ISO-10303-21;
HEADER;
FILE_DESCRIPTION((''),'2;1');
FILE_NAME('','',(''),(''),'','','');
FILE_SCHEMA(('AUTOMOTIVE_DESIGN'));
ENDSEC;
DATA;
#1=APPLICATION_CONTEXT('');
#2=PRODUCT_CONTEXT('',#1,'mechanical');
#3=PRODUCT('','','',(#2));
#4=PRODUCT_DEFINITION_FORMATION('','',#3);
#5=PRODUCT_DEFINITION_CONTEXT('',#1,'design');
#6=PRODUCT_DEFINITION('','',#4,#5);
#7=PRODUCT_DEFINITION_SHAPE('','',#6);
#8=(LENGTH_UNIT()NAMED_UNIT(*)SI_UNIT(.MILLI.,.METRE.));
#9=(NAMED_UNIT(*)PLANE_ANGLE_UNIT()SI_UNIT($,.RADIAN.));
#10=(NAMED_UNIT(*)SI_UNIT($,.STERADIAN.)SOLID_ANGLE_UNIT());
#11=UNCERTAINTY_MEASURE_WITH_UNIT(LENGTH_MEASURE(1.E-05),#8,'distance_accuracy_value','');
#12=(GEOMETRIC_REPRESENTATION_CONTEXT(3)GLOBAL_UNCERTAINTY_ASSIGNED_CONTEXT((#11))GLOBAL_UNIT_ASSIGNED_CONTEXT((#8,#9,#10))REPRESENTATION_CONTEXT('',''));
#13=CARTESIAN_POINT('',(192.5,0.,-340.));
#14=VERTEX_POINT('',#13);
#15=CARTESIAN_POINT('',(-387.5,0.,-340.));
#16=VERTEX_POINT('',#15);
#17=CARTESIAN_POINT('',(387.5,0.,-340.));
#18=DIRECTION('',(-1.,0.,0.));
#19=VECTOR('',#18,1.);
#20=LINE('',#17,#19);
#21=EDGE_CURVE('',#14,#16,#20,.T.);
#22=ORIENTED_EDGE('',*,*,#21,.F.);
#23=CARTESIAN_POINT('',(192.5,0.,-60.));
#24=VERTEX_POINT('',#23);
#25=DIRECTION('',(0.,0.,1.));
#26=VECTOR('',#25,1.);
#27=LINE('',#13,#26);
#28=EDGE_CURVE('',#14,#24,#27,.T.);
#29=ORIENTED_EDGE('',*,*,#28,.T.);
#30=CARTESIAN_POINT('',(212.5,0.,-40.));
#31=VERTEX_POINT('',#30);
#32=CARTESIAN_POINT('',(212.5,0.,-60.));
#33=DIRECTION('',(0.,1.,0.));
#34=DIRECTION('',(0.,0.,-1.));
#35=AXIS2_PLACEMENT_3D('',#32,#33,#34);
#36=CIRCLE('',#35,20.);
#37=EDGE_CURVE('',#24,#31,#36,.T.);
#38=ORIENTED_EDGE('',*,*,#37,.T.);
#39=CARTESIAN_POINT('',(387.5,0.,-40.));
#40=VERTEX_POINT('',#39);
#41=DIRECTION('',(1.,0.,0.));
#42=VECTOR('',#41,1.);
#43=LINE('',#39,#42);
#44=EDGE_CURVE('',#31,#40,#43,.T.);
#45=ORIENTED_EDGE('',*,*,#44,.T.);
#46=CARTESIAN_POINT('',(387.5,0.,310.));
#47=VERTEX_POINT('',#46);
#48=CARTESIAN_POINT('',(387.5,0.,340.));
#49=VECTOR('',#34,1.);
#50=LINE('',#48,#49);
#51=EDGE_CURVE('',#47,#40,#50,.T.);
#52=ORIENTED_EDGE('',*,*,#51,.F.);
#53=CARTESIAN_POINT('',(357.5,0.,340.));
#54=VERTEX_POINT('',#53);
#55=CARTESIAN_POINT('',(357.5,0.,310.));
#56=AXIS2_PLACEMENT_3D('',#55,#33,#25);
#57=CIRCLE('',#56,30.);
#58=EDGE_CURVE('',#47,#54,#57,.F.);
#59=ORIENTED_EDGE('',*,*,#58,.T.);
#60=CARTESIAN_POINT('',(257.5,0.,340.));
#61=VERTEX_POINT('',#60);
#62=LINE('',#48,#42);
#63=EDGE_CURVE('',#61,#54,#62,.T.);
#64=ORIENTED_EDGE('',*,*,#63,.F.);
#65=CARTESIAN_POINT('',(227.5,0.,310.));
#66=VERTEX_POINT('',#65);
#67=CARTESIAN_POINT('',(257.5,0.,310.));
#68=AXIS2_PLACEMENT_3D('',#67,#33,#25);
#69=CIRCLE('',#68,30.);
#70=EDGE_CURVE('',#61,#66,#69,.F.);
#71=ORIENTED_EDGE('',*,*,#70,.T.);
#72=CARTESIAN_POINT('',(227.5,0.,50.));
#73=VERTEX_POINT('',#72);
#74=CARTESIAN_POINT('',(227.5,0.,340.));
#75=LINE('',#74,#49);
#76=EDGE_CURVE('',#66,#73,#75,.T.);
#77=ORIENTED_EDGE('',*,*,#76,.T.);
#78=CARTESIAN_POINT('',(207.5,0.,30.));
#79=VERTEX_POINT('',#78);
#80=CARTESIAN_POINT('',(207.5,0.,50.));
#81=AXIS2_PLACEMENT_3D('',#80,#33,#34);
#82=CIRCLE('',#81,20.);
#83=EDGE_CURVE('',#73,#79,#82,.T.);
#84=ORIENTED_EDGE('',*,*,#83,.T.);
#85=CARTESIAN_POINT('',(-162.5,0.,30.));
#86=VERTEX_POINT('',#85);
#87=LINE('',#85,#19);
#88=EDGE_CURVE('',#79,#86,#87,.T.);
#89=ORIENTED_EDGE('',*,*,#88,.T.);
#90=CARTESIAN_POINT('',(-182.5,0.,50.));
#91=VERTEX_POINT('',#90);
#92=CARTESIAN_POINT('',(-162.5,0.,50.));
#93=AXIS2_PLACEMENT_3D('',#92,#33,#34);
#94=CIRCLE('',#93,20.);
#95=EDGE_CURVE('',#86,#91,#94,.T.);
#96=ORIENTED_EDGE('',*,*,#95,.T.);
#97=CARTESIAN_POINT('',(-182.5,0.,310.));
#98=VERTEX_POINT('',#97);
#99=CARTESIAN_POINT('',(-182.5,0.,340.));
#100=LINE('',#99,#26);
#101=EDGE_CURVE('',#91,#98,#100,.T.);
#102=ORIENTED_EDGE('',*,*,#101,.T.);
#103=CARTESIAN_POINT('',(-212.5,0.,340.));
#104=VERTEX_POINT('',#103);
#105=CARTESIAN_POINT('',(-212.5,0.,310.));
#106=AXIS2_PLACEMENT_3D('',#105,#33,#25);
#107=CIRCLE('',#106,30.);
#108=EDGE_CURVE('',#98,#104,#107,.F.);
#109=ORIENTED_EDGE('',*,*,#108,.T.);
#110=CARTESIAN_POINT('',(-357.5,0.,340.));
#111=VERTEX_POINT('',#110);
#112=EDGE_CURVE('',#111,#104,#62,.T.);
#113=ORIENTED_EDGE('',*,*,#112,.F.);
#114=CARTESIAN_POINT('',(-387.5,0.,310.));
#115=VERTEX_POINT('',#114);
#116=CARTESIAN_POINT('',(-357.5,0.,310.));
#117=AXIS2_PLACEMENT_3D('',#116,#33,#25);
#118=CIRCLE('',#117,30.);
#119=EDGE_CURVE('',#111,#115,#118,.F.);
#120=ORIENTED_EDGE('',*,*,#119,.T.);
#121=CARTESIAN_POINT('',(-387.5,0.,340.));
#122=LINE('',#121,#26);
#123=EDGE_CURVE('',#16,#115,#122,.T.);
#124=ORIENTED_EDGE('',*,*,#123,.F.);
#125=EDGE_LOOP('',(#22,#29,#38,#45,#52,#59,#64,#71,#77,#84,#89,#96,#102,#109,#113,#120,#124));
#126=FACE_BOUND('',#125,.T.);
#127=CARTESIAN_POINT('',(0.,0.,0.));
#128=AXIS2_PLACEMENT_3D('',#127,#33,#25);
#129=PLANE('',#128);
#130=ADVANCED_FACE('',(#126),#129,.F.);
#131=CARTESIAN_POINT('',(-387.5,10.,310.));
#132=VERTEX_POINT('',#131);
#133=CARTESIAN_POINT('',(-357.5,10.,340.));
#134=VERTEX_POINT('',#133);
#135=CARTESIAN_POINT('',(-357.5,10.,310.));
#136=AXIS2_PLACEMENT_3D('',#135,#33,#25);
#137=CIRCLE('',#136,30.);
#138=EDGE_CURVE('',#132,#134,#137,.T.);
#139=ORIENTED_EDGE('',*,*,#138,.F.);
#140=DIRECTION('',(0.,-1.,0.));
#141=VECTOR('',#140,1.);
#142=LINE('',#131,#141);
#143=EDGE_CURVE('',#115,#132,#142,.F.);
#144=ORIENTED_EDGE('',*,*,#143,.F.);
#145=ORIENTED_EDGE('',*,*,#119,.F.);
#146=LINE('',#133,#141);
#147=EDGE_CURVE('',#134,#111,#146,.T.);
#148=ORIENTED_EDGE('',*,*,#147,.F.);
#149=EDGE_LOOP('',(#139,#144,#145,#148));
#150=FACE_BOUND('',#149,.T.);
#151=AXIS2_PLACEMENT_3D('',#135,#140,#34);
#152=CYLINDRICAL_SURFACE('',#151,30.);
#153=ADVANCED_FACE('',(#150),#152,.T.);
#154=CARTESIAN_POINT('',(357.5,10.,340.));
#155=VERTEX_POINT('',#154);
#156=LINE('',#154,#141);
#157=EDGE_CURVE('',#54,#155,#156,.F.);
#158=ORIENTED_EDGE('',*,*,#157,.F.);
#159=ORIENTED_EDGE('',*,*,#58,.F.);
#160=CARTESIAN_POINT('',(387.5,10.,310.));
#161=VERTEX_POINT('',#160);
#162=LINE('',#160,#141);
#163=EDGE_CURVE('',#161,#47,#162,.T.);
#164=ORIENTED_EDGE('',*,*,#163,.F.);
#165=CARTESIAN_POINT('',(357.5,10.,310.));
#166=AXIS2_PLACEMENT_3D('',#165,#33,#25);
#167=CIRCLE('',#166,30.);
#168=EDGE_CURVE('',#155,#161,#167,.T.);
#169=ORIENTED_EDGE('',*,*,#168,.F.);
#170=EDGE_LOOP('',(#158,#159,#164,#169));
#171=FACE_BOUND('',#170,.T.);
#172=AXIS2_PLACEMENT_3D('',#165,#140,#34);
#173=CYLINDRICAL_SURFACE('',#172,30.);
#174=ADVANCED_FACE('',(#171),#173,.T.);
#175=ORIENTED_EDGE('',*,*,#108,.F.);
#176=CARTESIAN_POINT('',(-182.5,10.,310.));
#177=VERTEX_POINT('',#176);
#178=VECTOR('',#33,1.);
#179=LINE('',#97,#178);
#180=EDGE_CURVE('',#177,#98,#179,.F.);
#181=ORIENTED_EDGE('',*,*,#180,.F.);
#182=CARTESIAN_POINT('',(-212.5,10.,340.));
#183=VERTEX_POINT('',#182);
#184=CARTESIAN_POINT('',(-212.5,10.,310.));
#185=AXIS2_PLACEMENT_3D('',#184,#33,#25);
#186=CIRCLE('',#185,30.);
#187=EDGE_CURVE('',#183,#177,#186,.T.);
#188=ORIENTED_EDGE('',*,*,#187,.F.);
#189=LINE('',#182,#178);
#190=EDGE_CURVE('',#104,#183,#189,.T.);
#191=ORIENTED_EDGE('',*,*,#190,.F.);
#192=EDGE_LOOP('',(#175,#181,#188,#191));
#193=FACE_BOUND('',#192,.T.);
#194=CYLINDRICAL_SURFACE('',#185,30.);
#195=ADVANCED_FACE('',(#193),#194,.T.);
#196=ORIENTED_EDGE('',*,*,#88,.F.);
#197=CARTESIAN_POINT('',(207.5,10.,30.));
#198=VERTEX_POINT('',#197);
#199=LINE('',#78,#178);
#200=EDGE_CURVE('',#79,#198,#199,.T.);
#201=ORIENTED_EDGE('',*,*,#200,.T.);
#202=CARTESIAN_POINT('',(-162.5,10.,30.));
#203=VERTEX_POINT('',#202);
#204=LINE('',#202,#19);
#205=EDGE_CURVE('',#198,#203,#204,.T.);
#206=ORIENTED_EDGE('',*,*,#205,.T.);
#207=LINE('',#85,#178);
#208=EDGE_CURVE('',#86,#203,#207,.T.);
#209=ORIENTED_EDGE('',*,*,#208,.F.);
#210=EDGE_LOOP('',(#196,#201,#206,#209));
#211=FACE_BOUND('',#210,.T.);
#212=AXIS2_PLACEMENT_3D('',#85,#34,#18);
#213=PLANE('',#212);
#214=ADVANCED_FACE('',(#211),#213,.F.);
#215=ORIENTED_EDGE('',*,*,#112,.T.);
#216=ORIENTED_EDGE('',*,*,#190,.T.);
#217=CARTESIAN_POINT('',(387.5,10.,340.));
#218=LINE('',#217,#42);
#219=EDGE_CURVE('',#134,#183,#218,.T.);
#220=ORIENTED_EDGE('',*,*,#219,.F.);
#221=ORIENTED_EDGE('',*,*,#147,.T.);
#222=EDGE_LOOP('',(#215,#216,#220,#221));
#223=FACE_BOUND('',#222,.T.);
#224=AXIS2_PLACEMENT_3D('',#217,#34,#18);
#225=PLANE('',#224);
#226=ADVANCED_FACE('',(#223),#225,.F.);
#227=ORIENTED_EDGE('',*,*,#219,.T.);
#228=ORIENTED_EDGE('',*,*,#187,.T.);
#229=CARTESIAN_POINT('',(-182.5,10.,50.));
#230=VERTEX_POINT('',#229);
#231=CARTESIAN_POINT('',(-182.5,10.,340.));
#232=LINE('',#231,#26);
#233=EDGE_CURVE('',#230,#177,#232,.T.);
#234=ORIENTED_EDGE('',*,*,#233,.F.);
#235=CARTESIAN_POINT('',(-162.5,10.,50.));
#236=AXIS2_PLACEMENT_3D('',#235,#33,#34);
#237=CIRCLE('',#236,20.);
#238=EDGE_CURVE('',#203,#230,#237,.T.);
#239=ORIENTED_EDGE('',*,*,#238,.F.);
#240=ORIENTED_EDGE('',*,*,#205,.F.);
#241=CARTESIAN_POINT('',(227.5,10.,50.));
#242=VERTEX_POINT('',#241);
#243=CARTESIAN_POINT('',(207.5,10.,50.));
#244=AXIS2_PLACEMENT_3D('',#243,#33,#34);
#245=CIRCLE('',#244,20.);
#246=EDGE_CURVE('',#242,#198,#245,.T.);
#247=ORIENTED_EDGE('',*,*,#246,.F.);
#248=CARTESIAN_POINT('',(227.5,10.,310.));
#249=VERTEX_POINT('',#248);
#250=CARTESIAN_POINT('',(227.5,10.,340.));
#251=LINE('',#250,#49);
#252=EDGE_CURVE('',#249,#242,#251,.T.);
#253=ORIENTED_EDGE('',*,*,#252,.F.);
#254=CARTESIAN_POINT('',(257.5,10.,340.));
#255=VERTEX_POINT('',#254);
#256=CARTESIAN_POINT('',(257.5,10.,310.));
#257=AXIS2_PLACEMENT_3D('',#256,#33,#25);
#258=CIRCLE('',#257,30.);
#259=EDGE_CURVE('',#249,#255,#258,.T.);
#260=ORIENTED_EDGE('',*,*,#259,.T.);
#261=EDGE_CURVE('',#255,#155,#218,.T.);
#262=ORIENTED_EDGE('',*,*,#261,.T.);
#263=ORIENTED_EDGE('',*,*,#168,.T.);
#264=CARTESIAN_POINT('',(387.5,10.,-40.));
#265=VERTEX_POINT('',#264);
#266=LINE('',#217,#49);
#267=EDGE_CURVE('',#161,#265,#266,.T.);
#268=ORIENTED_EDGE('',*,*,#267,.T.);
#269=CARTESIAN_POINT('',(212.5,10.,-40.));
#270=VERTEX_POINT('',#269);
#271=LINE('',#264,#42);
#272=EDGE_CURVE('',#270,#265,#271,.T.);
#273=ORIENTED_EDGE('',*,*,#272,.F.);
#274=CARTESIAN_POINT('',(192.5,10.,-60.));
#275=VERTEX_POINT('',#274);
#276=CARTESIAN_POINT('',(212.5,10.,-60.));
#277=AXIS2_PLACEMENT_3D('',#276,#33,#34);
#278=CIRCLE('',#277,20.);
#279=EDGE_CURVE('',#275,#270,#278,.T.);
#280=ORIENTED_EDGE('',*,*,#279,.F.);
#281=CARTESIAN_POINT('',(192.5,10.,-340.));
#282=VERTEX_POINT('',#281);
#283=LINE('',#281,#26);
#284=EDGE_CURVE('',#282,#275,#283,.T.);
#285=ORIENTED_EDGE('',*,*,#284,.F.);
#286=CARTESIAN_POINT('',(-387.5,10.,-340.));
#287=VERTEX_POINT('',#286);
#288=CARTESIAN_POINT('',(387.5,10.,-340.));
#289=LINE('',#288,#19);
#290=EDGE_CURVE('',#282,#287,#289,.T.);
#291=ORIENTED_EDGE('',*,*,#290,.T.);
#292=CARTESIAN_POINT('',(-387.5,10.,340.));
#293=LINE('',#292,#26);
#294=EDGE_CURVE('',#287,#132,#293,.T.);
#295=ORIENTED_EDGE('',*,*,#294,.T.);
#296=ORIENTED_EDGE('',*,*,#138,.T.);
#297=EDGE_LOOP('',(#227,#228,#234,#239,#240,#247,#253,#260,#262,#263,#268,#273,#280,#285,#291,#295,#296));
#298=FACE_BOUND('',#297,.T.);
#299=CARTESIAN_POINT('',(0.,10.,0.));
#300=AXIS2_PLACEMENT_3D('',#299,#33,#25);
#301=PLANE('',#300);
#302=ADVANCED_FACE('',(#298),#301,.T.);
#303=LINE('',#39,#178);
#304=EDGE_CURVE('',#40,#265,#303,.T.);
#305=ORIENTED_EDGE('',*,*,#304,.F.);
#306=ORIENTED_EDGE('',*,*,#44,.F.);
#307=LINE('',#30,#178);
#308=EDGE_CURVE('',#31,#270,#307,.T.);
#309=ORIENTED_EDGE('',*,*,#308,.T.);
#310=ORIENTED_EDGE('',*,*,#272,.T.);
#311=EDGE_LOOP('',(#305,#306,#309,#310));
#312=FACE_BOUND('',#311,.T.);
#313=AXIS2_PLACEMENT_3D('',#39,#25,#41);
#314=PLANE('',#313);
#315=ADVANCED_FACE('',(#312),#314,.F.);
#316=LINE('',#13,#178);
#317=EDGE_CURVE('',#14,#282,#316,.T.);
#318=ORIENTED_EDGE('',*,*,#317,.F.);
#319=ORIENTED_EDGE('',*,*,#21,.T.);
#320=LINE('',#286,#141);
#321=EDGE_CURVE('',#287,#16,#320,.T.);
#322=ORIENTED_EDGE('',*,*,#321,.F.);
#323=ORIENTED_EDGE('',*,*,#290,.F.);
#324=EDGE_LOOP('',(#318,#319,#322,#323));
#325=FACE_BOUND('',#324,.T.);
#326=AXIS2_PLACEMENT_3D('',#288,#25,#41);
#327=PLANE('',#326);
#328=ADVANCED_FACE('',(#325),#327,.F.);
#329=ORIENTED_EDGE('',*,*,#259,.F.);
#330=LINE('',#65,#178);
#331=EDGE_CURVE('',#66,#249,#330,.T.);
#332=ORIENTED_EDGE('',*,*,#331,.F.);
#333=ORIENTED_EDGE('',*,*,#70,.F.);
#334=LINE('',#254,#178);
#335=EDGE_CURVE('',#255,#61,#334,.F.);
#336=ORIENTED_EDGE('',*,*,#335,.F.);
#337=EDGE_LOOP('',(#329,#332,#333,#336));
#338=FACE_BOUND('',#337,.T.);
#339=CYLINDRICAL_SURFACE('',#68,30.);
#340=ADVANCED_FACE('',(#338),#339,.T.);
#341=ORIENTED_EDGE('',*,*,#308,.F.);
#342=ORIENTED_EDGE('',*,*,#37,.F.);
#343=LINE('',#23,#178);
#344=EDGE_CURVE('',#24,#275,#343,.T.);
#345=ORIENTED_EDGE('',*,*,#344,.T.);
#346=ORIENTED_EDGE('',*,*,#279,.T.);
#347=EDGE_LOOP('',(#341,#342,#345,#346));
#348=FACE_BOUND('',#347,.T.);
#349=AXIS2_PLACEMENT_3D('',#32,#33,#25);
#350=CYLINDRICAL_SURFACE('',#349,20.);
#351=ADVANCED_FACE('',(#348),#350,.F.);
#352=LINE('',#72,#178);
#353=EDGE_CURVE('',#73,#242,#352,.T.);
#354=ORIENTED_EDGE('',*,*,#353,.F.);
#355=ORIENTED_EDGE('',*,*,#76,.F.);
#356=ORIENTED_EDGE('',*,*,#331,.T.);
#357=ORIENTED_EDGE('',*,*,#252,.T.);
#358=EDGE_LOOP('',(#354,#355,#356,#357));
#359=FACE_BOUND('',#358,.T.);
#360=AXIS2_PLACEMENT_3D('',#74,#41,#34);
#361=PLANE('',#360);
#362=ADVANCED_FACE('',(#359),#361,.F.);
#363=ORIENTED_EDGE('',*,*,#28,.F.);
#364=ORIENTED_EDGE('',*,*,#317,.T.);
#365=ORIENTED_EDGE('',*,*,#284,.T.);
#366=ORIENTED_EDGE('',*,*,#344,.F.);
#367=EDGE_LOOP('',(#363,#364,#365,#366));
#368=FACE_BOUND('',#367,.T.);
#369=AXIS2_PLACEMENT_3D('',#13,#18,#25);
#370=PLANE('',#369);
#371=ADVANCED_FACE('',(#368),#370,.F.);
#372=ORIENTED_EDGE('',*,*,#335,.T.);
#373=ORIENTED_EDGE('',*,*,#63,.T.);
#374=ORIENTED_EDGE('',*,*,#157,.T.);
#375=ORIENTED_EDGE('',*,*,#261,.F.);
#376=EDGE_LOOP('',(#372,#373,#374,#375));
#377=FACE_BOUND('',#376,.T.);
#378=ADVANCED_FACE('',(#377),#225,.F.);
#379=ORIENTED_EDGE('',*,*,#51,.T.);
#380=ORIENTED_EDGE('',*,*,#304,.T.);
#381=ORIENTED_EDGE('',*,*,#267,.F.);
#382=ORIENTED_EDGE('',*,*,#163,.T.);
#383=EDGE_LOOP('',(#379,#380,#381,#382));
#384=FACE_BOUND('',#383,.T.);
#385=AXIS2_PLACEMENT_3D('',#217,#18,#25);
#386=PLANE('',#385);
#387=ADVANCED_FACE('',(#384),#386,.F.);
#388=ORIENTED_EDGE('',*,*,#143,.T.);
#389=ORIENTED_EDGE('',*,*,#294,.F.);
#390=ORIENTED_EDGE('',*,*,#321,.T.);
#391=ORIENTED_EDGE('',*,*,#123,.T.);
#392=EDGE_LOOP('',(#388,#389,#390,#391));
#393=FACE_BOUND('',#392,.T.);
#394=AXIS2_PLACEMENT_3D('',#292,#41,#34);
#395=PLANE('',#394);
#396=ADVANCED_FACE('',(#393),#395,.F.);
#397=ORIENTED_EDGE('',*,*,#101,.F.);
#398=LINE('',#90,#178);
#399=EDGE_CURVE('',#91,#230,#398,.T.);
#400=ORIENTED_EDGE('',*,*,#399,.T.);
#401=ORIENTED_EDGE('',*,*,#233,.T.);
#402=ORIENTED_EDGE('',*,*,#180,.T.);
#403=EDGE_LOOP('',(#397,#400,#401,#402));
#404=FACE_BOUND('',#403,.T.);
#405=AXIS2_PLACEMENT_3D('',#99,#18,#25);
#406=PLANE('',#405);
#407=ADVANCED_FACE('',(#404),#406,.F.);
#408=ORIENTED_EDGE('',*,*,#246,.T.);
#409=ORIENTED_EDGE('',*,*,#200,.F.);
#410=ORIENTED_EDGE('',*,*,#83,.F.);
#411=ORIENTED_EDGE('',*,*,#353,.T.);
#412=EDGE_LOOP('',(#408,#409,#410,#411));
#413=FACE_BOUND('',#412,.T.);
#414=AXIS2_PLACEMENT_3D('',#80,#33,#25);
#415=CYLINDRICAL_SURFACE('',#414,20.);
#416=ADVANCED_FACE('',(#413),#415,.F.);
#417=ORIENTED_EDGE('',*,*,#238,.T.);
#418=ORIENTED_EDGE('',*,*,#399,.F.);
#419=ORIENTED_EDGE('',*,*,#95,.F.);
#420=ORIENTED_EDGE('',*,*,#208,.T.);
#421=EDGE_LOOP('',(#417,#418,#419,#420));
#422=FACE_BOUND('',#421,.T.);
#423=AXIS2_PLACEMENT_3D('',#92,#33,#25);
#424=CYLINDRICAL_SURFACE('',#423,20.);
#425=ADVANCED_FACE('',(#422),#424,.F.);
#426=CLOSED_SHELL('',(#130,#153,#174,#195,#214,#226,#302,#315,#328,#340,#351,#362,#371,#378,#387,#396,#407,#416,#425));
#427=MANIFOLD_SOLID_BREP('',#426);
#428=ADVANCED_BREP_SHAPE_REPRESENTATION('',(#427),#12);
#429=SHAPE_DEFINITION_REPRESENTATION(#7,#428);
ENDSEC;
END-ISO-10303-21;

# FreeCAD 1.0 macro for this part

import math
import FreeCAD as App
import Part
import Sketcher

V = App.Vector
Q = App.Units.Quantity


def edges_at(feature, points):
    """Names of the edges that pass closest to the given points."""
    edges = feature.Shape.Edges
    near = lambda p: min(range(len(edges)), key=lambda i: edges[i].distToShape(Part.Vertex(*p))[0])
    return sorted({f"Edge{near(p) + 1}" for p in points})


def add_polygon(sketch, points):
    """Adds a closed chain of lines whose ends are joined by coincident constraints."""
    first, n = sketch.GeometryCount, len(points)
    for a, b in zip(points, points[1:] + points[:1]):
        sketch.addGeometry(Part.LineSegment(App.Vector(*a, 0), App.Vector(*b, 0)), False)
    for i in range(n):
        sketch.addConstraint(Sketcher.Constraint("Coincident", first + i, 2, first + (i + 1) % n, 1))

doc = App.newDocument("Part")
body = doc.addObject("PartDesign::Body", "Body")

sketch1 = body.newObject("Sketcher::SketchObject", "Sketch")
sketch1.AttachmentSupport = (doc.getObject("XZ_Plane"), [""])
sketch1.MapMode = "FlatFace"
add_polygon(sketch1, [(-388, -340), (-388, 340), (388, 340), (388, -340)])
sketch1.addConstraint(Sketcher.Constraint("Vertical", 0))
sketch1.addConstraint(Sketcher.Constraint("Horizontal", 1))
sketch1.addConstraint(Sketcher.Constraint("Vertical", 2))
sketch1.addConstraint(Sketcher.Constraint("Horizontal", 3))
sketch1.addConstraint(Sketcher.Constraint("Symmetric", 0, 2, 2, 2, -1, 1))
sketch1.addConstraint(Sketcher.Constraint("DistanceX", 1, 1, 1, 2, Q("775 mm")))
sketch1.addConstraint(Sketcher.Constraint("DistanceY", 0, 1, 0, 2, Q("680 mm")))
pad1 = body.newObject("PartDesign::Pad", "Pad")
pad1.Profile = sketch1
pad1.Length = 10
pad1.Reversed = True

sketch2 = body.newObject("Sketcher::SketchObject", "Sketch001")
sketch2.AttachmentSupport = (doc.getObject("XZ_Plane"), [""])
sketch2.MapMode = "FlatFace"
sketch2.AttachmentOffset = App.Placement(V(0, 0, -10), App.Rotation())
sketch2.addGeometry(Part.LineSegment(V(388, -340, 0), V(192, -340, 0)), False)
sketch2.addGeometry(Part.LineSegment(V(192, -340, 0), V(192, -60, 0)), False)
sketch2.addGeometry(Part.ArcOfCircle(Part.Circle(V(212, -60, 0), V(0, 0, 1), 20), math.radians(90), math.radians(180)), False)
sketch2.addGeometry(Part.LineSegment(V(212, -40, 0), V(388, -40, 0)), False)
sketch2.addGeometry(Part.LineSegment(V(388, -40, 0), V(388, -340, 0)), False)
sketch2.addGeometry(Part.LineSegment(V(-182, 340, 0), V(228, 340, 0)), False)
sketch2.addGeometry(Part.LineSegment(V(228, 340, 0), V(228, 50, 0)), False)
sketch2.addGeometry(Part.ArcOfCircle(Part.Circle(V(208, 50, 0), V(0, 0, 1), 20), math.radians(-90), math.radians(0)), False)
sketch2.addGeometry(Part.LineSegment(V(208, 30, 0), V(-162, 30, 0)), False)
sketch2.addGeometry(Part.ArcOfCircle(Part.Circle(V(-163, 50, 0), V(0, 0, 1), 20), math.radians(180), math.radians(270)), False)
sketch2.addGeometry(Part.LineSegment(V(-182, 50, 0), V(-182, 340, 0)), False)
sketch2.addConstraint(Sketcher.Constraint("Coincident", 0, 2, 1, 1))
sketch2.addConstraint(Sketcher.Constraint("Tangent", 1, 2, 2, 2))
sketch2.addConstraint(Sketcher.Constraint("Tangent", 2, 1, 3, 1))
sketch2.addConstraint(Sketcher.Constraint("Coincident", 3, 2, 4, 1))
sketch2.addConstraint(Sketcher.Constraint("Coincident", 4, 2, 0, 1))
sketch2.addConstraint(Sketcher.Constraint("Coincident", 5, 2, 6, 1))
sketch2.addConstraint(Sketcher.Constraint("Tangent", 6, 2, 7, 2))
sketch2.addConstraint(Sketcher.Constraint("Tangent", 7, 1, 8, 1))
sketch2.addConstraint(Sketcher.Constraint("Tangent", 8, 2, 9, 2))
sketch2.addConstraint(Sketcher.Constraint("Tangent", 9, 1, 10, 1))
sketch2.addConstraint(Sketcher.Constraint("Coincident", 10, 2, 5, 1))
sketch2.addConstraint(Sketcher.Constraint("Horizontal", 0))
sketch2.addConstraint(Sketcher.Constraint("Vertical", 1))
sketch2.addConstraint(Sketcher.Constraint("Horizontal", 3))
sketch2.addConstraint(Sketcher.Constraint("Vertical", 4))
sketch2.addConstraint(Sketcher.Constraint("Horizontal", 5))
sketch2.addConstraint(Sketcher.Constraint("Vertical", 6))
sketch2.addConstraint(Sketcher.Constraint("Horizontal", 8))
sketch2.addConstraint(Sketcher.Constraint("Vertical", 10))
sketch2.addConstraint(Sketcher.Constraint("Equal", 2, 7))
sketch2.addConstraint(Sketcher.Constraint("Equal", 7, 9))
sketch2.addConstraint(Sketcher.Constraint("Radius", 2, Q("20 mm")))
sketch2.addConstraint(Sketcher.Constraint("DistanceX", 0, 2, 0, 1, Q("195 mm")))
sketch2.addConstraint(Sketcher.Constraint("DistanceX", 5, 1, 5, 2, Q("410 mm")))
sketch2.addConstraint(Sketcher.Constraint("DistanceY", 1, 1, 1, 2, Q("280 mm")))
sketch2.addConstraint(Sketcher.Constraint("DistanceY", 6, 2, 6, 1, Q("290 mm")))
sketch2.addConstraint(Sketcher.Constraint("DistanceY", 2, 3, -1, 1, Q("60 mm")))
sketch2.addConstraint(Sketcher.Constraint("DistanceY", -1, 1, 7, 3, Q("50 mm")))
sketch2.addConstraint(Sketcher.Constraint("DistanceX", 7, 3, 2, 3, Q("5 mm")))
sketch2.addConstraint(Sketcher.Constraint("DistanceX", -1, 1, 2, 3, Q("212.5 mm")))
pocket1 = body.newObject("PartDesign::Pocket", "Pocket")
pocket1.Profile = sketch2
pocket1.Type = "ThroughAll"
pocket1.Reversed = True
doc.recompute()

fillet = body.newObject("PartDesign::Fillet", "Fillet")
fillet.Base = (pocket1, edges_at(pocket1, [
    (-182.5, 5, 340),
    (227.5, 5, 340),
    (387.5, 5, 340),
    (-387.5, 5, 340),
]))
fillet.Radius = 30

doc.recompute()
